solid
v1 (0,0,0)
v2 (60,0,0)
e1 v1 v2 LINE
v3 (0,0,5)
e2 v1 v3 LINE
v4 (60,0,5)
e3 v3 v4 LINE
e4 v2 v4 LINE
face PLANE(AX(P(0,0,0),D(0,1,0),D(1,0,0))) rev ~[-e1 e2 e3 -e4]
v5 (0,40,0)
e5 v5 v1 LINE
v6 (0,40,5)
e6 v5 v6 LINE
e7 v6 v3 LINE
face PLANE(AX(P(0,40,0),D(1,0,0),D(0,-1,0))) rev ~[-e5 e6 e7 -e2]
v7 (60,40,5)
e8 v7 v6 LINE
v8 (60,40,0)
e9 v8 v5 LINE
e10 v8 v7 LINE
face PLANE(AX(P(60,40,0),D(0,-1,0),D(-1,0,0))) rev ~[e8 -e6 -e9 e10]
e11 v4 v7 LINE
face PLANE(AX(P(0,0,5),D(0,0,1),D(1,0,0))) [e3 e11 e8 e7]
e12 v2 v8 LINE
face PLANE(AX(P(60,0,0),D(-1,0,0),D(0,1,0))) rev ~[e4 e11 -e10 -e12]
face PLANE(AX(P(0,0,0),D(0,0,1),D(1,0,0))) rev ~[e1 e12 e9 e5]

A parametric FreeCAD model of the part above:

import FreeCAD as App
import Part
import Sketcher

V = App.Vector
Q = App.Units.Quantity


def add_polygon(sketch, points):
    """Adds a closed chain of lines whose ends are joined by coincident constraints."""
    first, n = sketch.GeometryCount, len(points)
    for a, b in zip(points, points[1:] + points[:1]):
        sketch.addGeometry(Part.LineSegment(App.Vector(*a, 0), App.Vector(*b, 0)), False)
    for i in range(n):
        sketch.addConstraint(Sketcher.Constraint("Coincident", first + i, 2, first + (i + 1) % n, 1))

doc = App.newDocument("Part")
body = doc.addObject("PartDesign::Body", "Body")

sketch1 = body.newObject("Sketcher::SketchObject", "Sketch")
sketch1.AttachmentSupport = (doc.getObject("XY_Plane"), [""])
sketch1.MapMode = "FlatFace"
add_polygon(sketch1, [(0, 40), (0, 0), (60, 0), (60, 40)])
sketch1.addConstraint([
    Sketcher.Constraint("Vertical", 0),
    Sketcher.Constraint("Horizontal", 1),
    Sketcher.Constraint("Vertical", 2),
    Sketcher.Constraint("Horizontal", 3),
    Sketcher.Constraint("Coincident", 0, 2, -1, 1),
    Sketcher.Constraint("DistanceX", 1, 1, 1, 2, Q("60 mm")),
    Sketcher.Constraint("DistanceY", 0, 2, 0, 1, Q("40 mm")),
])
pad1 = body.newObject("PartDesign::Pad", "Pad")
pad1.Profile = sketch1
pad1.Length = 5

doc.recompute()
